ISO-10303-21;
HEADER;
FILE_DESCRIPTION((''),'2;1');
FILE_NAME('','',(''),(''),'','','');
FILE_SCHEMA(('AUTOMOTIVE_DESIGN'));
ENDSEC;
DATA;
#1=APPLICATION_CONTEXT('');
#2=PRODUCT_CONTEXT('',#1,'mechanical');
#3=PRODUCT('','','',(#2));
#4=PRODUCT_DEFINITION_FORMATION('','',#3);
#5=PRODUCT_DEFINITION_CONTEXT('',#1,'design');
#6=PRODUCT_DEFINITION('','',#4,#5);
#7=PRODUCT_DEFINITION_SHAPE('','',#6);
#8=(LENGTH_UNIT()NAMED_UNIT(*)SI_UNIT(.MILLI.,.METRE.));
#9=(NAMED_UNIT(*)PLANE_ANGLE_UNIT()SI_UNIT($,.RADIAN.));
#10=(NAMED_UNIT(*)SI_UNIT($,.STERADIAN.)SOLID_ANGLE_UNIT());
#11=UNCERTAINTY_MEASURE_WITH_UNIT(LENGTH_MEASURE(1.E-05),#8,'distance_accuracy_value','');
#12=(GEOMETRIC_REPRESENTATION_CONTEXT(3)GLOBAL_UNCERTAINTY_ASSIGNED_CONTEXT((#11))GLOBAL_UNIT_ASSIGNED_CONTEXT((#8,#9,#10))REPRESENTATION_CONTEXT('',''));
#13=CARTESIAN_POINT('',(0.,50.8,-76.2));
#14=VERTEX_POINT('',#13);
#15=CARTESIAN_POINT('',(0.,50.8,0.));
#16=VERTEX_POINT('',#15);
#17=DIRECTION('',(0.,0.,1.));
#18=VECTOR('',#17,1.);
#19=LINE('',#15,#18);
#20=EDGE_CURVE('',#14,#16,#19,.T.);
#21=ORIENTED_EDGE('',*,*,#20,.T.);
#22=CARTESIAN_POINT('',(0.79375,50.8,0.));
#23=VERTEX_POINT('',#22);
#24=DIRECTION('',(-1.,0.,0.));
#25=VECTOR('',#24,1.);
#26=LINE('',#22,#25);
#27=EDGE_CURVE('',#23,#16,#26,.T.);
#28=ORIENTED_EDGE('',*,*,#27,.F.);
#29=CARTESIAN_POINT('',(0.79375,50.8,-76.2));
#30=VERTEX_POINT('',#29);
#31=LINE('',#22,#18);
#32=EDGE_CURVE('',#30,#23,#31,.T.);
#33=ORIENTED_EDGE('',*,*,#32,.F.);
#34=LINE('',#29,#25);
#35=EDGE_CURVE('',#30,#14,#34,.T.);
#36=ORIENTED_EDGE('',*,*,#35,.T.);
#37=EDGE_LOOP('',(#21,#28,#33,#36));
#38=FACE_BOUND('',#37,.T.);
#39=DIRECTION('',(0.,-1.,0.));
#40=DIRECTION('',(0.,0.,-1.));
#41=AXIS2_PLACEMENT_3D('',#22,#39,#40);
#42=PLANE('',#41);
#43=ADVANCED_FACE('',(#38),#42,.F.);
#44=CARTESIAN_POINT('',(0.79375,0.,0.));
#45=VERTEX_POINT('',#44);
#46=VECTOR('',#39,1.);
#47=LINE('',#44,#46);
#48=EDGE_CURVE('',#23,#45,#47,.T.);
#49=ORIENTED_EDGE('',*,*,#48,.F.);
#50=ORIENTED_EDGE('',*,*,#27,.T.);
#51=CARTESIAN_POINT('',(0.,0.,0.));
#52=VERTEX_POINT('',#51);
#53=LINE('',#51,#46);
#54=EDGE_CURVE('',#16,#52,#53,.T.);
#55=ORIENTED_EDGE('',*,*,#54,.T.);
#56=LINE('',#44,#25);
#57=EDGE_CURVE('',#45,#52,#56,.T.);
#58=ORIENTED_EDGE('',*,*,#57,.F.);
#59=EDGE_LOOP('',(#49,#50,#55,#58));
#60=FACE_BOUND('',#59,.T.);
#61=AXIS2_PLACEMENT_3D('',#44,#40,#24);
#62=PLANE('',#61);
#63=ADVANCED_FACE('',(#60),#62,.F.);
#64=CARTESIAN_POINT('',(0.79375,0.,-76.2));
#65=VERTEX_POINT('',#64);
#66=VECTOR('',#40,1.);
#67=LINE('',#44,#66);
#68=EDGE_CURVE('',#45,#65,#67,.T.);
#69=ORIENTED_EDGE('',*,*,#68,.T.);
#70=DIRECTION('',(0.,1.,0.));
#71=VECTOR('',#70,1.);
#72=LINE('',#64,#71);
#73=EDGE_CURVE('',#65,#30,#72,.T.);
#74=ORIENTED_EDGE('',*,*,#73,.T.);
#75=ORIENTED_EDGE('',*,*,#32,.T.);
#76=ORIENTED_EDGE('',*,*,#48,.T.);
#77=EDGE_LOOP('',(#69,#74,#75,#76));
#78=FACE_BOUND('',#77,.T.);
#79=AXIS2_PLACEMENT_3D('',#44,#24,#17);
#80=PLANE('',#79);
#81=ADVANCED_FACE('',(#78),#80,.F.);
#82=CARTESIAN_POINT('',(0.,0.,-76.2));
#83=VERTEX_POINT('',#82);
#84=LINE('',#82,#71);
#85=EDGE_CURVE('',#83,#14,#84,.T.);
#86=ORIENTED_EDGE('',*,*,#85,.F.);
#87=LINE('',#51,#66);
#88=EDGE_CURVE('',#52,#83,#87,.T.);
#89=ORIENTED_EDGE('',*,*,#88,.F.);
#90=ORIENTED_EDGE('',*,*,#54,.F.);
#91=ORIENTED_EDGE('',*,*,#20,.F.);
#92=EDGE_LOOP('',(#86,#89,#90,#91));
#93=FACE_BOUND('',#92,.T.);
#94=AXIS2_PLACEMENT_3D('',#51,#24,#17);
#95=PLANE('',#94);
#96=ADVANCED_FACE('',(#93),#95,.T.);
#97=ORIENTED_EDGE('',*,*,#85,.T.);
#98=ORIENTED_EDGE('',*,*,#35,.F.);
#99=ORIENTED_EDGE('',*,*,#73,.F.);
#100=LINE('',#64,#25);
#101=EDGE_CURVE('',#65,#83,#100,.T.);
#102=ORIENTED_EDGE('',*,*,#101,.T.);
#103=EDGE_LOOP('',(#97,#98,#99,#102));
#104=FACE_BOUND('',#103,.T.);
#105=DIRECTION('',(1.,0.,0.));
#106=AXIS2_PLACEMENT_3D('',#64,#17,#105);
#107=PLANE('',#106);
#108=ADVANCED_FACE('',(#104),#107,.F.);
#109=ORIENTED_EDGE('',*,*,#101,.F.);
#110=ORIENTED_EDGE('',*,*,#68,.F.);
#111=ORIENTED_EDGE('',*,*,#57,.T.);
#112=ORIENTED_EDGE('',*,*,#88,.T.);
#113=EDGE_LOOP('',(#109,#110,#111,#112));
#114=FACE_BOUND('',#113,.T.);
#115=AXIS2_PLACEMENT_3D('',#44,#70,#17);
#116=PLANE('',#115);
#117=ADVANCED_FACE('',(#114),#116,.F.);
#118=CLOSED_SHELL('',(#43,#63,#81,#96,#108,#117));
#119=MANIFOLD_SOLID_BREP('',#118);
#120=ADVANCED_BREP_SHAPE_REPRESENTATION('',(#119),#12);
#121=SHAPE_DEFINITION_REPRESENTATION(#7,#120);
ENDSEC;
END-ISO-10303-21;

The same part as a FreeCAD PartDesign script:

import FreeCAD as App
import Part
import Sketcher

V = App.Vector
Q = App.Units.Quantity

doc = App.newDocument("Part")
body = doc.addObject("PartDesign::Body", "Body")

# Sketch on YZ plane
sketch1 = body.newObject("Sketcher::SketchObject", "Sketch")
sketch1.AttachmentSupport = (doc.getObject("YZ_Plane"), [""])
sketch1.MapMode = "FlatFace"
sketch1.addGeometry(Part.LineSegment(V(51, 0, 0), V(0, 0, 0)), False)
sketch1.addGeometry(Part.LineSegment(V(0, 0, 0), V(0, -76, 0)), False)
sketch1.addGeometry(Part.LineSegment(V(0, -76, 0), V(51, -76, 0)), False)
sketch1.addGeometry(Part.LineSegment(V(51, -76, 0), V(51, 0, 0)), False)
sketch1.addConstraint(Sketcher.Constraint("Coincident", 0, 2, 1, 1))
sketch1.addConstraint(Sketcher.Constraint("Coincident", 1, 2, 2, 1))
sketch1.addConstraint(Sketcher.Constraint("Coincident", 2, 2, 3, 1))
sketch1.addConstraint(Sketcher.Constraint("Coincident", 3, 2, 0, 1))
sketch1.addConstraint(Sketcher.Constraint("Horizontal", 0))
sketch1.addConstraint(Sketcher.Constraint("Vertical", 1))
sketch1.addConstraint(Sketcher.Constraint("Horizontal", 2))
sketch1.addConstraint(Sketcher.Constraint("Vertical", 3))
sketch1.addConstraint(Sketcher.Constraint("Coincident", 0, 2, -1, 1))
sketch1.addConstraint(Sketcher.Constraint("DistanceX", 0, 2, 0, 1, Q("2 in")))
sketch1.addConstraint(Sketcher.Constraint("DistanceY", 1, 2, 1, 1, Q("3 in")))
pad1 = body.newObject("PartDesign::Pad", "Pad")
pad1.Profile = sketch1
pad1.Length = Q("0.03125 in")

doc.recompute()
